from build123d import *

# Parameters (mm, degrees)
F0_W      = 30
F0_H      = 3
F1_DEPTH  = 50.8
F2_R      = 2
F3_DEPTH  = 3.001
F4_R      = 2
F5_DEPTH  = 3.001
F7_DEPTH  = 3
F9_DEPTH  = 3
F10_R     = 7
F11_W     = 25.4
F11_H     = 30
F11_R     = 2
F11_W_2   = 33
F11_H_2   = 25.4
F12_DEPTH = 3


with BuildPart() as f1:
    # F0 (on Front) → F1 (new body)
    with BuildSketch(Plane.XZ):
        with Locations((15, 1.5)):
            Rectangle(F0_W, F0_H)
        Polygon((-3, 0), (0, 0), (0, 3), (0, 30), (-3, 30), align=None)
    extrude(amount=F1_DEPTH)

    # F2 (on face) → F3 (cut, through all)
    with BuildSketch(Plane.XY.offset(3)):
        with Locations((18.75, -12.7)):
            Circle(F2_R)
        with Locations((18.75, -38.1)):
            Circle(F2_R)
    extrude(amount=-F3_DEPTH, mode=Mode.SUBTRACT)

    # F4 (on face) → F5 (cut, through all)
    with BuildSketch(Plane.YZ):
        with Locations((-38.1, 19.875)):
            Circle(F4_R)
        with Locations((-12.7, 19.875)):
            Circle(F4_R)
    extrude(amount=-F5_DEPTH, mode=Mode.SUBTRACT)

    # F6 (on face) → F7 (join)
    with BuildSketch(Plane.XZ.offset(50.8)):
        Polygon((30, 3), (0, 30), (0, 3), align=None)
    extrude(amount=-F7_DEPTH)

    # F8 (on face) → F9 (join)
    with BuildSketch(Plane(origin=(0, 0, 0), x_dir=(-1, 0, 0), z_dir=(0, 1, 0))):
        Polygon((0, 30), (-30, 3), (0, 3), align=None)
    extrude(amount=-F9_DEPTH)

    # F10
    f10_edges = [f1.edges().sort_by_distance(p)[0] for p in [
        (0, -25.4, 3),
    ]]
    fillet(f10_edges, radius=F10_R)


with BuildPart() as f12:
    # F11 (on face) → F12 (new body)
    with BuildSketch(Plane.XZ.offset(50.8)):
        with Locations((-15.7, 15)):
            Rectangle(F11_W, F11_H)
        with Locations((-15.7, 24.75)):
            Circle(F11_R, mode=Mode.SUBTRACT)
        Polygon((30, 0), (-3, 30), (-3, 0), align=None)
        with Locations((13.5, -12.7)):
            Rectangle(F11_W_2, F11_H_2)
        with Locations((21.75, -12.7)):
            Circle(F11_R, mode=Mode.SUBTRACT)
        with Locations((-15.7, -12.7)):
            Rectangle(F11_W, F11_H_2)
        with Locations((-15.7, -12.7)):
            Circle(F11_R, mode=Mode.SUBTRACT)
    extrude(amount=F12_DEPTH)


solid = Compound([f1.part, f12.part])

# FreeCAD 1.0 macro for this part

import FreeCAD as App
import Part
import Sketcher

V = App.Vector
Q = App.Units.Quantity


def edges_at(feature, points):
    """Names of the edges that pass closest to the given points."""
    edges = feature.Shape.Edges
    near = lambda p: min(range(len(edges)), key=lambda i: edges[i].distToShape(Part.Vertex(*p))[0])
    return sorted({f"Edge{near(p) + 1}" for p in points})

doc = App.newDocument("Part")
body = doc.addObject("PartDesign::Body", "Body")

# Sketch on XZ plane
sketch1 = body.newObject("Sketcher::SketchObject", "Sketch")
sketch1.AttachmentSupport = (doc.getObject("XZ_Plane"), [""])
sketch1.MapMode = "FlatFace"
sketch1.addGeometry(Part.LineSegment(V(30, 0, 0), V(30, 3, 0)), False)
sketch1.addGeometry(Part.LineSegment(V(30, 3, 0), V(0, 3, 0)), False)
sketch1.addGeometry(Part.LineSegment(V(0, 3, 0), V(0, 30, 0)), False)
sketch1.addGeometry(Part.LineSegment(V(0, 30, 0), V(-3, 30, 0)), False)
sketch1.addGeometry(Part.LineSegment(V(-3, 30, 0), V(-3, 0, 0)), False)
sketch1.addGeometry(Part.LineSegment(V(-3, 0, 0), V(30, 0, 0)), False)
sketch1.addConstraint(Sketcher.Constraint("Coincident", 0, 2, 1, 1))
sketch1.addConstraint(Sketcher.Constraint("Coincident", 1, 2, 2, 1))
sketch1.addConstraint(Sketcher.Constraint("Coincident", 2, 2, 3, 1))
sketch1.addConstraint(Sketcher.Constraint("Coincident", 3, 2, 4, 1))
sketch1.addConstraint(Sketcher.Constraint("Coincident", 4, 2, 5, 1))
sketch1.addConstraint(Sketcher.Constraint("Coincident", 5, 2, 0, 1))
sketch1.addConstraint(Sketcher.Constraint("Vertical", 0))
sketch1.addConstraint(Sketcher.Constraint("Horizontal", 1))
sketch1.addConstraint(Sketcher.Constraint("Vertical", 2))
sketch1.addConstraint(Sketcher.Constraint("Horizontal", 3))
sketch1.addConstraint(Sketcher.Constraint("Vertical", 4))
sketch1.addConstraint(Sketcher.Constraint("Horizontal", 5))
sketch1.addConstraint(Sketcher.Constraint("PointOnObject", 1, 2, -2))
sketch1.addConstraint(Sketcher.Constraint("PointOnObject", 4, 2, -1))
sketch1.addConstraint(Sketcher.Constraint("Equal", 3, 0))
sketch1.addConstraint(Sketcher.Constraint("Equal", 1, 4))
sketch1.addConstraint(Sketcher.Constraint("DistanceX", 1, 2, 1, 1, Q("30 mm")))
sketch1.addConstraint(Sketcher.Constraint("DistanceX", 3, 2, 3, 1, Q("3 mm")))
pad1 = body.newObject("PartDesign::Pad", "Pad")
pad1.Profile = sketch1
pad1.Length = 50.8

# Sketch on XY plane
sketch2 = body.newObject("Sketcher::SketchObject", "Sketch001")
sketch2.AttachmentSupport = (doc.getObject("XY_Plane"), [""])
sketch2.MapMode = "FlatFace"
sketch2.AttachmentOffset = App.Placement(V(0, 0, 3), App.Rotation())
sketch2.addGeometry(Part.Circle(V(18.75, -12.7, 0), V(0, 0, 1), 2), False)
sketch2.addGeometry(Part.Circle(V(18.75, -38.1, 0), V(0, 0, 1), 2), False)
sketch2.addConstraint(Sketcher.Constraint("Equal", 0, 1))
sketch2.addConstraint(Sketcher.Constraint("Vertical", 0, 3, 1, 3))
sketch2.addConstraint(Sketcher.Constraint("Diameter", 0, Q("4 mm")))
sketch2.addConstraint(Sketcher.Constraint("DistanceY", 0, 3, -1, 1, Q("12.7 mm")))
sketch2.addConstraint(Sketcher.Constraint("DistanceY", 1, 3, -1, 1, Q("38.1 mm")))
sketch2.addConstraint(Sketcher.Constraint("DistanceX", -1, 1, 0, 3, Q("18.75 mm")))
pocket1 = body.newObject("PartDesign::Pocket", "Pocket")
pocket1.Profile = sketch2
pocket1.Type = "ThroughAll"

# Sketch on YZ plane
sketch3 = body.newObject("Sketcher::SketchObject", "Sketch002")
sketch3.AttachmentSupport = (doc.getObject("YZ_Plane"), [""])
sketch3.MapMode = "FlatFace"
sketch3.addGeometry(Part.Circle(V(-38.1, 19.875, 0), V(0, 0, 1), 2), False)
sketch3.addGeometry(Part.Circle(V(-12.7, 19.875, 0), V(0, 0, 1), 2), False)
sketch3.addConstraint(Sketcher.Constraint("Equal", 0, 1))
sketch3.addConstraint(Sketcher.Constraint("Horizontal", 0, 3, 1, 3))
sketch3.addConstraint(Sketcher.Constraint("Diameter", 0, Q("4 mm")))
sketch3.addConstraint(Sketcher.Constraint("DistanceX", 0, 3, -1, 1, Q("38.1 mm")))
sketch3.addConstraint(Sketcher.Constraint("DistanceX", 1, 3, -1, 1, Q("12.7 mm")))
sketch3.addConstraint(Sketcher.Constraint("DistanceY", -1, 1, 0, 3, Q("19.875 mm")))
pocket2 = body.newObject("PartDesign::Pocket", "Pocket001")
pocket2.Profile = sketch3
pocket2.Type = "ThroughAll"

# Sketch on XZ plane
sketch4 = body.newObject("Sketcher::SketchObject", "Sketch003")
sketch4.AttachmentSupport = (doc.getObject("XZ_Plane"), [""])
sketch4.MapMode = "FlatFace"
sketch4.AttachmentOffset = App.Placement(V(0, 0, 50.8), App.Rotation())
sketch4.addGeometry(Part.LineSegment(V(30, 3, 0), V(0, 30, 0)), False)
sketch4.addGeometry(Part.LineSegment(V(0, 30, 0), V(0, 3, 0)), False)
sketch4.addGeometry(Part.LineSegment(V(0, 3, 0), V(30, 3, 0)), False)
sketch4.addConstraint(Sketcher.Constraint("Coincident", 0, 2, 1, 1))
sketch4.addConstraint(Sketcher.Constraint("Coincident", 1, 2, 2, 1))
sketch4.addConstraint(Sketcher.Constraint("Coincident", 2, 2, 0, 1))
sketch4.addConstraint(Sketcher.Constraint("Vertical", 1))
sketch4.addConstraint(Sketcher.Constraint("Horizontal", 2))
sketch4.addConstraint(Sketcher.Constraint("PointOnObject", 0, 2, -2))
sketch4.addConstraint(Sketcher.Constraint("DistanceX", 2, 1, 2, 2, Q("30 mm")))
sketch4.addConstraint(Sketcher.Constraint("DistanceY", 1, 2, 1, 1, Q("27 mm")))
sketch4.addConstraint(Sketcher.Constraint("DistanceY", -1, 1, 0, 2, Q("30 mm")))
pad2 = body.newObject("PartDesign::Pad", "Pad001")
pad2.Profile = sketch4
pad2.Length = 3
pad2.Reversed = True

# Sketch on XZ plane
sketch5 = body.newObject("Sketcher::SketchObject", "Sketch004")
sketch5.AttachmentSupport = (doc.getObject("XZ_Plane"), [""])
sketch5.MapMode = "FlatFace"
sketch5.addGeometry(Part.LineSegment(V(0, 30, 0), V(30, 3, 0)), False)
sketch5.addGeometry(Part.LineSegment(V(30, 3, 0), V(0, 3, 0)), False)
sketch5.addGeometry(Part.LineSegment(V(0, 3, 0), V(0, 30, 0)), False)
sketch5.addConstraint(Sketcher.Constraint("Coincident", 0, 2, 1, 1))
sketch5.addConstraint(Sketcher.Constraint("Coincident", 1, 2, 2, 1))
sketch5.addConstraint(Sketcher.Constraint("Coincident", 2, 2, 0, 1))
sketch5.addConstraint(Sketcher.Constraint("Horizontal", 1))
sketch5.addConstraint(Sketcher.Constraint("Vertical", 2))
sketch5.addConstraint(Sketcher.Constraint("PointOnObject", 1, 2, -2))
sketch5.addConstraint(Sketcher.Constraint("DistanceX", 1, 2, 1, 1, Q("30 mm")))
sketch5.addConstraint(Sketcher.Constraint("DistanceY", 2, 1, 2, 2, Q("27 mm")))
sketch5.addConstraint(Sketcher.Constraint("DistanceY", -1, 1, 0, 2, Q("3 mm")))
pad3 = body.newObject("PartDesign::Pad", "Pad002")
pad3.Profile = sketch5
pad3.Length = 3
doc.recompute()

fillet = body.newObject("PartDesign::Fillet", "Fillet")
fillet.Base = (pad3, edges_at(pad3, [(0, -25.4, 3)]))
fillet.Radius = 7
body2 = doc.addObject("PartDesign::Body", "Body001")

# Sketch on XZ plane
sketch6 = body2.newObject("Sketcher::SketchObject", "Sketch005")
sketch6.AttachmentSupport = (doc.getObject("XZ_Plane001"), [""])
sketch6.MapMode = "FlatFace"
sketch6.AttachmentOffset = App.Placement(V(0, 0, 50.8), App.Rotation())
sketch6.addGeometry(Part.LineSegment(V(-28.4, 30, 0), V(-28.4, -25.4, 0)), False)
sketch6.addGeometry(Part.LineSegment(V(-28.4, -25.4, 0), V(30, -25.4, 0)), False)
sketch6.addGeometry(Part.LineSegment(V(30, -25.4, 0), V(30, 0, 0)), False)
sketch6.addGeometry(Part.LineSegment(V(30, 0, 0), V(-3, 30, 0)), False)
sketch6.addGeometry(Part.LineSegment(V(-3, 30, 0), V(-28.4, 30, 0)), False)
sketch6.addGeometry(Part.Circle(V(-15.7, -12.7, 0), V(0, 0, 1), 2), False)
sketch6.addGeometry(Part.Circle(V(21.75, -12.7, 0), V(0, 0, 1), 2), False)
sketch6.addGeometry(Part.Circle(V(-15.7, 24.75, 0), V(0, 0, 1), 2), False)
sketch6.addConstraint(Sketcher.Constraint("Coincident", 0, 2, 1, 1))
sketch6.addConstraint(Sketcher.Constraint("Coincident", 1, 2, 2, 1))
sketch6.addConstraint(Sketcher.Constraint("Coincident", 2, 2, 3, 1))
sketch6.addConstraint(Sketcher.Constraint("Coincident", 3, 2, 4, 1))
sketch6.addConstraint(Sketcher.Constraint("Coincident", 4, 2, 0, 1))
sketch6.addConstraint(Sketcher.Constraint("Vertical", 0))
sketch6.addConstraint(Sketcher.Constraint("Horizontal", 1))
sketch6.addConstraint(Sketcher.Constraint("Vertical", 2))
sketch6.addConstraint(Sketcher.Constraint("Horizontal", 4))
sketch6.addConstraint(Sketcher.Constraint("Equal", 5, 6))
sketch6.addConstraint(Sketcher.Constraint("Equal", 6, 7))
sketch6.addConstraint(Sketcher.Constraint("PointOnObject", 2, 2, -1))
sketch6.addConstraint(Sketcher.Constraint("Horizontal", 5, 3, 6, 3))
sketch6.addConstraint(Sketcher.Constraint("Vertical", 5, 3, 7, 3))
sketch6.addConstraint(Sketcher.Constraint("Equal", 4, 2))
sketch6.addConstraint(Sketcher.Constraint("Diameter", 5, Q("4 mm")))
sketch6.addConstraint(Sketcher.Constraint("DistanceX", 1, 1, 1, 2, Q("58.4 mm")))
sketch6.addConstraint(Sketcher.Constraint("DistanceX", 4, 2, 4, 1, Q("25.4 mm")))
sketch6.addConstraint(Sketcher.Constraint("DistanceY", 0, 2, 0, 1, Q("55.4 mm")))
sketch6.addConstraint(Sketcher.Constraint("DistanceX", -1, 1, 1, 2, Q("30 mm")))
sketch6.addConstraint(Sketcher.Constraint("DistanceX", 5, 3, -1, 1, Q("15.7 mm")))
sketch6.addConstraint(Sketcher.Constraint("DistanceY", 5, 3, -1, 1, Q("12.7 mm")))
sketch6.addConstraint(Sketcher.Constraint("DistanceX", -1, 1, 6, 3, Q("21.75 mm")))
sketch6.addConstraint(Sketcher.Constraint("DistanceY", -1, 1, 7, 3, Q("24.75 mm")))
pad4 = body2.newObject("PartDesign::Pad", "Pad003")
pad4.Profile = sketch6
pad4.Length = 3

doc.recompute()
